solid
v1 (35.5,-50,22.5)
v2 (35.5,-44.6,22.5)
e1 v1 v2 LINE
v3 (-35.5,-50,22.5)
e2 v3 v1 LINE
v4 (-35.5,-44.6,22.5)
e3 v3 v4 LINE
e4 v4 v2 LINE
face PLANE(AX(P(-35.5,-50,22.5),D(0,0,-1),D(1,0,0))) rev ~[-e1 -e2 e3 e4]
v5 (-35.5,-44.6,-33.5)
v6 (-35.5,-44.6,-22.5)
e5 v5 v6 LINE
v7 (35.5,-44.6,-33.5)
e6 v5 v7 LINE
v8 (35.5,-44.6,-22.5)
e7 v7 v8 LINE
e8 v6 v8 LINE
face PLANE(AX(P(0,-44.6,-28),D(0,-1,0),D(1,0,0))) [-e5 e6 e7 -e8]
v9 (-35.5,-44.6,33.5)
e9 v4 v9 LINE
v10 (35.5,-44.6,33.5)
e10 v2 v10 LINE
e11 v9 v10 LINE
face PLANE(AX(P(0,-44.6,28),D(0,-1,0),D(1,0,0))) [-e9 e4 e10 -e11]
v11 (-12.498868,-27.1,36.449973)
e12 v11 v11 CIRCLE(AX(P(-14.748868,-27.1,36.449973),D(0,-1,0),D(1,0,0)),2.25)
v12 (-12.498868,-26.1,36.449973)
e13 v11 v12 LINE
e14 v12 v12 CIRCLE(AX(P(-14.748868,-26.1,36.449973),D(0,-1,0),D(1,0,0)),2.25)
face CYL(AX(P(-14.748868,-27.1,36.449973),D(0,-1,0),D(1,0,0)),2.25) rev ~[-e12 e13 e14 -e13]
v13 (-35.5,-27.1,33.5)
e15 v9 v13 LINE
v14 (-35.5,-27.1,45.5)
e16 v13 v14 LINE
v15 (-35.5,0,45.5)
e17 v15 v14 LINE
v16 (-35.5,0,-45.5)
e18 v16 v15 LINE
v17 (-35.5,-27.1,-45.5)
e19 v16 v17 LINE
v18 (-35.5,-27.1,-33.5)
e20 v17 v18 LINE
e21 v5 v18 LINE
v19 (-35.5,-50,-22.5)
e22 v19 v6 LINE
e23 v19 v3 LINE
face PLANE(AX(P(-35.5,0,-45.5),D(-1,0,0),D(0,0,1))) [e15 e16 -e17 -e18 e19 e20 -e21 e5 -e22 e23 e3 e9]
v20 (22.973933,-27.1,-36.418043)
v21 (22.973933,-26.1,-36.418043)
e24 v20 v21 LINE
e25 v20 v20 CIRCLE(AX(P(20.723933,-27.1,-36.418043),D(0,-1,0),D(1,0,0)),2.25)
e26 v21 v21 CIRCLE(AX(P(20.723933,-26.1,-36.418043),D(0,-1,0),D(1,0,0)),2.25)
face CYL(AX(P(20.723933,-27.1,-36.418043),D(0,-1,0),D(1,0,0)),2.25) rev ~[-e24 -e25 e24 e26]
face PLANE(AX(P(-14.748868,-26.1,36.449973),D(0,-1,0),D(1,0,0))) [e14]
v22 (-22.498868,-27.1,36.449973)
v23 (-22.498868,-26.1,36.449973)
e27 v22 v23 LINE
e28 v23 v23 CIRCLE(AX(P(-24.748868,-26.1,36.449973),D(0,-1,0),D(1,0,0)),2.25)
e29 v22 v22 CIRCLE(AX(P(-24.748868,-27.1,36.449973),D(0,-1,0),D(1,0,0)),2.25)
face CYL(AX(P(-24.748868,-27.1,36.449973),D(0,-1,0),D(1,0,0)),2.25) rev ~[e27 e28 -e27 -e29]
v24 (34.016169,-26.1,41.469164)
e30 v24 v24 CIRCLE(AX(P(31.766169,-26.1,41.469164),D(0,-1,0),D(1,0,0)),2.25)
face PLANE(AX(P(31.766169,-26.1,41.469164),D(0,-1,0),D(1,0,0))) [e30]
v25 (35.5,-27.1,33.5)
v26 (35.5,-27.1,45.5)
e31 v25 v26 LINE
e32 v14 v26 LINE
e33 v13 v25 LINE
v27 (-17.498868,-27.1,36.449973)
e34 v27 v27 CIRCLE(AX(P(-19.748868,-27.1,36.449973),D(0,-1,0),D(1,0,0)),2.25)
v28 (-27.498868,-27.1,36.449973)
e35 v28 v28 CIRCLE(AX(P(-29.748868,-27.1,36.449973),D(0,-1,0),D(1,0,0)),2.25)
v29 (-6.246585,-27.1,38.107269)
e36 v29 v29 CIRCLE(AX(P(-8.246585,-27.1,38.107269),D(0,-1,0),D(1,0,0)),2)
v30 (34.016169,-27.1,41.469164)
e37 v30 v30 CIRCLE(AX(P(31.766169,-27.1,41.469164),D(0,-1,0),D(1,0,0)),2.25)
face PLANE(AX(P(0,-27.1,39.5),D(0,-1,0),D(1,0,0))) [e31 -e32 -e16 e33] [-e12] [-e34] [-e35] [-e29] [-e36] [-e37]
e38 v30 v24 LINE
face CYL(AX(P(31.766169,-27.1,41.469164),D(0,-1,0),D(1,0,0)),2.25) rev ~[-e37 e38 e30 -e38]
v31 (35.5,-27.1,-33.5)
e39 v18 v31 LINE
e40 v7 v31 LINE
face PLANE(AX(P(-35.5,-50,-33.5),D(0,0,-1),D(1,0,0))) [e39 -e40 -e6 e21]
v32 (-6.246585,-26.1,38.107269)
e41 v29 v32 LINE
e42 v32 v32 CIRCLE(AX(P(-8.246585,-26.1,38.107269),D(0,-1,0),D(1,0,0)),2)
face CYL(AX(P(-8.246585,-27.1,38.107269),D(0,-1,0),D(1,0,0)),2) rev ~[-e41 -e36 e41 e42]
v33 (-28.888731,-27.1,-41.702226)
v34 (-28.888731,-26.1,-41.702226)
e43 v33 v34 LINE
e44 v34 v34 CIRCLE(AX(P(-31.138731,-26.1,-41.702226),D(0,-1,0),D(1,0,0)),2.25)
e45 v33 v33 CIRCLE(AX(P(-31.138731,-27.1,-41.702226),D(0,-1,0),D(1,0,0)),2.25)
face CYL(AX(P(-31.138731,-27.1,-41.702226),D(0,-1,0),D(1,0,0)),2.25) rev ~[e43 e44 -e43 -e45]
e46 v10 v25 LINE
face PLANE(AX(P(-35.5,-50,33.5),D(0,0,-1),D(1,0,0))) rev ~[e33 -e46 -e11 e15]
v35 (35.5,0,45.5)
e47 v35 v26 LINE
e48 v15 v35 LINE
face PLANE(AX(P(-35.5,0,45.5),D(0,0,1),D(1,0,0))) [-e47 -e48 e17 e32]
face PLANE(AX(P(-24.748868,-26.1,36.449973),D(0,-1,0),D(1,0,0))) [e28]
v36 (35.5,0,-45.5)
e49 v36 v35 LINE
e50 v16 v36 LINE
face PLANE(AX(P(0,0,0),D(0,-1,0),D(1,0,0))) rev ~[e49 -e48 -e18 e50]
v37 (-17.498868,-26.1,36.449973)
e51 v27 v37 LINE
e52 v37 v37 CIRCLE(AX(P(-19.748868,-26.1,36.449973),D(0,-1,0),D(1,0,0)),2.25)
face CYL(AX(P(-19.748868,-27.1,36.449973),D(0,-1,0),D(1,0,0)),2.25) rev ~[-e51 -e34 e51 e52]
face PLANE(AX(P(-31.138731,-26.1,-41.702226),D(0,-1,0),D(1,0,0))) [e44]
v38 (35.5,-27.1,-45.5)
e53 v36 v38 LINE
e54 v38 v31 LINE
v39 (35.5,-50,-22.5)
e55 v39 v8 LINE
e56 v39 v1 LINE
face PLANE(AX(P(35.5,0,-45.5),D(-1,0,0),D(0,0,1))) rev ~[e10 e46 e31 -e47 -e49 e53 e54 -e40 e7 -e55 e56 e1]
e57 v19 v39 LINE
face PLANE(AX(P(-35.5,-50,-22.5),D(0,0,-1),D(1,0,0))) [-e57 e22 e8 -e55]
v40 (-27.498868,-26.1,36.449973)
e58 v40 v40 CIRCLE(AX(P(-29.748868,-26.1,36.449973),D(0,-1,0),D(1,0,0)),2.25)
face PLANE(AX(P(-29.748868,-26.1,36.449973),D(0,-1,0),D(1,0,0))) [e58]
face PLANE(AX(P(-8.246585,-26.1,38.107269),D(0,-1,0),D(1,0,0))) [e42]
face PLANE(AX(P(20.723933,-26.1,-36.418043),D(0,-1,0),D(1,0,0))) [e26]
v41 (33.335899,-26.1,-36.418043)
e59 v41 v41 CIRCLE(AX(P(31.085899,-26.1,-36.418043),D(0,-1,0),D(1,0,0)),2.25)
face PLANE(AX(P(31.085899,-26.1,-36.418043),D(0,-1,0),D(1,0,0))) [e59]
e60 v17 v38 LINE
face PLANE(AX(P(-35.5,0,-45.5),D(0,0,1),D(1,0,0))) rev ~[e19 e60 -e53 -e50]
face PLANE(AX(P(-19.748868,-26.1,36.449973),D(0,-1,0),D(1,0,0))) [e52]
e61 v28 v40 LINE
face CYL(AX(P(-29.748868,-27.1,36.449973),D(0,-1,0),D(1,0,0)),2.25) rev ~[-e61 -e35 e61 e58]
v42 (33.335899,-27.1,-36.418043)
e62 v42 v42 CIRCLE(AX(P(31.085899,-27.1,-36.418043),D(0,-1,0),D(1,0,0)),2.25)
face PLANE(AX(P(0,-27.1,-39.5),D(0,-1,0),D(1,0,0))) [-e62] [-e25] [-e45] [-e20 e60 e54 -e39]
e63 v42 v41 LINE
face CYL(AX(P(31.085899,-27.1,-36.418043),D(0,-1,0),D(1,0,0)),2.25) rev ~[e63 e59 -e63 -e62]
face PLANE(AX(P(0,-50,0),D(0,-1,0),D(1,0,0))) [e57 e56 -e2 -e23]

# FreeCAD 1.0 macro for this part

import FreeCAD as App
import Part
import Sketcher

V = App.Vector
Q = App.Units.Quantity

doc = App.newDocument("Part")
body = doc.addObject("PartDesign::Body", "Body")

sketch1 = body.newObject("Sketcher::SketchObject", "Sketch")
sketch1.AttachmentSupport = (doc.getObject("XZ_Plane"), [""])
sketch1.MapMode = "FlatFace"
sketch1.addGeometry([
    Part.LineSegment(V(-35.5, 45.5, 0), V(-35.5, -45.5, 0)),
    Part.LineSegment(V(-35.5, -45.5, 0), V(35.5, -45.5, 0)),
    Part.LineSegment(V(35.5, -45.5, 0), V(35.5, 45.5, 0)),
    Part.LineSegment(V(35.5, 45.5, 0), V(-35.5, 45.5, 0)),
], False)
sketch1.addConstraint([
    Sketcher.Constraint("Coincident", 0, 2, 1, 1),
    Sketcher.Constraint("Coincident", 1, 2, 2, 1),
    Sketcher.Constraint("Coincident", 2, 2, 3, 1),
    Sketcher.Constraint("Coincident", 3, 2, 0, 1),
    Sketcher.Constraint("Vertical", 0),
    Sketcher.Constraint("Horizontal", 1),
    Sketcher.Constraint("Vertical", 2),
    Sketcher.Constraint("Horizontal", 3),
    Sketcher.Constraint("Symmetric", 0, 2, 2, 2, -1, 1),
    Sketcher.Constraint("DistanceX", 1, 1, 1, 2, Q("71 mm")),
    Sketcher.Constraint("DistanceY", 0, 2, 0, 1, Q("91 mm")),
])
pad1 = body.newObject("PartDesign::Pad", "Pad")
pad1.Profile = sketch1
pad1.Length = 50

sketch2 = body.newObject("Sketcher::SketchObject", "Sketch001")
sketch2.AttachmentSupport = (doc.getObject("XZ_Plane"), [""])
sketch2.MapMode = "FlatFace"
sketch2.AttachmentOffset = App.Placement(V(0, 0, 50), App.Rotation())
sketch2.addGeometry([
    Part.LineSegment(V(-35.5, 45.5, 0), V(-35.5, 33.5, 0)),
    Part.LineSegment(V(-35.5, 33.5, 0), V(35.5, 33.5, 0)),
    Part.LineSegment(V(35.5, 33.5, 0), V(35.5, 45.5, 0)),
    Part.LineSegment(V(35.5, 45.5, 0), V(-35.5, 45.5, 0)),
    Part.LineSegment(V(-35.5, -33.5, 0), V(-35.5, -45.5, 0)),
    Part.LineSegment(V(-35.5, -45.5, 0), V(35.5, -45.5, 0)),
    Part.LineSegment(V(35.5, -45.5, 0), V(35.5, -33.5, 0)),
    Part.LineSegment(V(35.5, -33.5, 0), V(-35.5, -33.5, 0)),
], False)
sketch2.addConstraint([
    Sketcher.Constraint("Coincident", 0, 2, 1, 1),
    Sketcher.Constraint("Coincident", 1, 2, 2, 1),
    Sketcher.Constraint("Coincident", 2, 2, 3, 1),
    Sketcher.Constraint("Coincident", 3, 2, 0, 1),
    Sketcher.Constraint("Coincident", 4, 2, 5, 1),
    Sketcher.Constraint("Coincident", 5, 2, 6, 1),
    Sketcher.Constraint("Coincident", 6, 2, 7, 1),
    Sketcher.Constraint("Coincident", 7, 2, 4, 1),
    Sketcher.Constraint("Vertical", 0),
    Sketcher.Constraint("Horizontal", 1),
    Sketcher.Constraint("Vertical", 2),
    Sketcher.Constraint("Horizontal", 3),
    Sketcher.Constraint("Vertical", 4),
    Sketcher.Constraint("Horizontal", 5),
    Sketcher.Constraint("Vertical", 6),
    Sketcher.Constraint("Horizontal", 7),
    Sketcher.Constraint("Symmetric", 2, 2, 4, 2, -1, 1),
    Sketcher.Constraint("Symmetric", 0, 2, 6, 2, -1, 1),
    Sketcher.Constraint("Vertical", 3, 2, 4, 2),
    Sketcher.Constraint("DistanceX", 1, 1, 1, 2, Q("71 mm")),
    Sketcher.Constraint("DistanceY", 0, 2, 0, 1, Q("12 mm")),
    Sketcher.Constraint("DistanceY", 4, 2, 0, 2, Q("79 mm")),
])
pocket1 = body.newObject("PartDesign::Pocket", "Pocket")
pocket1.Profile = sketch2
pocket1.Length = 22.9

sketch3 = body.newObject("Sketcher::SketchObject", "Sketch002")
sketch3.AttachmentSupport = (doc.getObject("XZ_Plane"), [""])
sketch3.MapMode = "FlatFace"
sketch3.AttachmentOffset = App.Placement(V(0, 0, 50), App.Rotation())
sketch3.addGeometry([
    Part.LineSegment(V(-35.5, 33.5, 0), V(-35.5, 22.5, 0)),
    Part.LineSegment(V(-35.5, 22.5, 0), V(35.5, 22.5, 0)),
    Part.LineSegment(V(35.5, 22.5, 0), V(35.5, 33.5, 0)),
    Part.LineSegment(V(35.5, 33.5, 0), V(-35.5, 33.5, 0)),
    Part.LineSegment(V(-35.5, -22.5, 0), V(-35.5, -33.5, 0)),
    Part.LineSegment(V(-35.5, -33.5, 0), V(35.5, -33.5, 0)),
    Part.LineSegment(V(35.5, -33.5, 0), V(35.5, -22.5, 0)),
    Part.LineSegment(V(35.5, -22.5, 0), V(-35.5, -22.5, 0)),
], False)
sketch3.addConstraint([
    Sketcher.Constraint("Coincident", 0, 2, 1, 1),
    Sketcher.Constraint("Coincident", 1, 2, 2, 1),
    Sketcher.Constraint("Coincident", 2, 2, 3, 1),
    Sketcher.Constraint("Coincident", 3, 2, 0, 1),
    Sketcher.Constraint("Coincident", 4, 2, 5, 1),
    Sketcher.Constraint("Coincident", 5, 2, 6, 1),
    Sketcher.Constraint("Coincident", 6, 2, 7, 1),
    Sketcher.Constraint("Coincident", 7, 2, 4, 1),
    Sketcher.Constraint("Vertical", 0),
    Sketcher.Constraint("Horizontal", 1),
    Sketcher.Constraint("Vertical", 2),
    Sketcher.Constraint("Horizontal", 3),
    Sketcher.Constraint("Vertical", 4),
    Sketcher.Constraint("Horizontal", 5),
    Sketcher.Constraint("Vertical", 6),
    Sketcher.Constraint("Horizontal", 7),
    Sketcher.Constraint("Symmetric", 2, 2, 4, 2, -1, 1),
    Sketcher.Constraint("Symmetric", 0, 2, 6, 2, -1, 1),
    Sketcher.Constraint("Vertical", 3, 2, 4, 2),
    Sketcher.Constraint("DistanceX", 1, 1, 1, 2, Q("71 mm")),
    Sketcher.Constraint("DistanceY", 0, 2, 0, 1, Q("11 mm")),
    Sketcher.Constraint("DistanceY", 4, 2, 0, 2, Q("56 mm")),
])
pocket2 = body.newObject("PartDesign::Pocket", "Pocket001")
pocket2.Profile = sketch3
pocket2.Length = 5.4

sketch4 = body.newObject("Sketcher::SketchObject", "Sketch003")
sketch4.AttachmentSupport = (doc.getObject("XZ_Plane"), [""])
sketch4.MapMode = "FlatFace"
sketch4.AttachmentOffset = App.Placement(V(0, 0, 27.1), App.Rotation())
sketch4.addGeometry([
    Part.Circle(V(-29.748868, 36.449973, 0), V(0, 0, 1), 2.25),
    Part.Circle(V(-24.748868, 36.449973, 0), V(0, 0, 1), 2.25),
    Part.Circle(V(-19.748868, 36.449973, 0), V(0, 0, 1), 2.25),
    Part.Circle(V(-14.748868, 36.449973, 0), V(0, 0, 1), 2.25),
    Part.Circle(V(-8.246585, 38.107269, 0), V(0, 0, 1), 2),
    Part.Circle(V(31.766169, 41.469164, 0), V(0, 0, 1), 2.25),
    Part.Circle(V(-31.138731, -41.702226, 0), V(0, 0, 1), 2.25),
    Part.Circle(V(20.723933, -36.418043, 0), V(0, 0, 1), 2.25),
    Part.Circle(V(31.085899, -36.418043, 0), V(0, 0, 1), 2.25),
], False)
sketch4.addConstraint([
    Sketcher.Constraint("Equal", 0, 1),
    Sketcher.Constraint("Equal", 1, 2),
    Sketcher.Constraint("Equal", 2, 3),
    Sketcher.Constraint("Equal", 3, 5),
    Sketcher.Constraint("Equal", 5, 6),
    Sketcher.Constraint("Equal", 6, 7),
    Sketcher.Constraint("Equal", 7, 8),
    Sketcher.Constraint("Horizontal", 0, 3, 1, 3),
    Sketcher.Constraint("Horizontal", 1, 3, 2, 3),
    Sketcher.Constraint("Horizontal", 2, 3, 3, 3),
    Sketcher.Constraint("Horizontal", 7, 3, 8, 3),
    Sketcher.Constraint("Diameter", 4, Q("4 mm")),
    Sketcher.Constraint("Diameter", 0, Q("4.5 mm")),
    Sketcher.Constraint("DistanceX", 0, 3, 1, 3, Q("5 mm")),
    Sketcher.Constraint("DistanceX", 1, 3, 2, 3, Q("5 mm")),
    Sketcher.Constraint("DistanceX", 2, 3, 3, 3, Q("5 mm")),
    Sketcher.Constraint("DistanceX", -1, 1, 8, 3, Q("31.085899 mm")),
    Sketcher.Constraint("DistanceY", 6, 3, 0, 3, Q("78.152199 mm")),
    Sketcher.Constraint("DistanceX", 3, 3, 7, 3, Q("35.472801 mm")),
    Sketcher.Constraint("DistanceX", 0, 3, -1, 1, Q("29.748868 mm")),
    Sketcher.Constraint("DistanceY", -1, 1, 4, 3, Q("38.107269 mm")),
    Sketcher.Constraint("DistanceX", -1, 1, 5, 3, Q("31.766169 mm")),
    Sketcher.Constraint("DistanceX", 6, 3, -1, 1, Q("31.138731 mm")),
    Sketcher.Constraint("DistanceY", 3, 3, 5, 3, Q("5.019191 mm")),
    Sketcher.Constraint("DistanceY", 7, 3, 4, 3, Q("74.525312 mm")),
    Sketcher.Constraint("DistanceY", -1, 1, 0, 3, Q("36.449973 mm")),
    Sketcher.Constraint("DistanceX", 4, 3, -1, 1, Q("8.246585 mm")),
])
pocket3 = body.newObject("PartDesign::Pocket", "Pocket002")
pocket3.Profile = sketch4
pocket3.Length = 1

doc.recompute()
